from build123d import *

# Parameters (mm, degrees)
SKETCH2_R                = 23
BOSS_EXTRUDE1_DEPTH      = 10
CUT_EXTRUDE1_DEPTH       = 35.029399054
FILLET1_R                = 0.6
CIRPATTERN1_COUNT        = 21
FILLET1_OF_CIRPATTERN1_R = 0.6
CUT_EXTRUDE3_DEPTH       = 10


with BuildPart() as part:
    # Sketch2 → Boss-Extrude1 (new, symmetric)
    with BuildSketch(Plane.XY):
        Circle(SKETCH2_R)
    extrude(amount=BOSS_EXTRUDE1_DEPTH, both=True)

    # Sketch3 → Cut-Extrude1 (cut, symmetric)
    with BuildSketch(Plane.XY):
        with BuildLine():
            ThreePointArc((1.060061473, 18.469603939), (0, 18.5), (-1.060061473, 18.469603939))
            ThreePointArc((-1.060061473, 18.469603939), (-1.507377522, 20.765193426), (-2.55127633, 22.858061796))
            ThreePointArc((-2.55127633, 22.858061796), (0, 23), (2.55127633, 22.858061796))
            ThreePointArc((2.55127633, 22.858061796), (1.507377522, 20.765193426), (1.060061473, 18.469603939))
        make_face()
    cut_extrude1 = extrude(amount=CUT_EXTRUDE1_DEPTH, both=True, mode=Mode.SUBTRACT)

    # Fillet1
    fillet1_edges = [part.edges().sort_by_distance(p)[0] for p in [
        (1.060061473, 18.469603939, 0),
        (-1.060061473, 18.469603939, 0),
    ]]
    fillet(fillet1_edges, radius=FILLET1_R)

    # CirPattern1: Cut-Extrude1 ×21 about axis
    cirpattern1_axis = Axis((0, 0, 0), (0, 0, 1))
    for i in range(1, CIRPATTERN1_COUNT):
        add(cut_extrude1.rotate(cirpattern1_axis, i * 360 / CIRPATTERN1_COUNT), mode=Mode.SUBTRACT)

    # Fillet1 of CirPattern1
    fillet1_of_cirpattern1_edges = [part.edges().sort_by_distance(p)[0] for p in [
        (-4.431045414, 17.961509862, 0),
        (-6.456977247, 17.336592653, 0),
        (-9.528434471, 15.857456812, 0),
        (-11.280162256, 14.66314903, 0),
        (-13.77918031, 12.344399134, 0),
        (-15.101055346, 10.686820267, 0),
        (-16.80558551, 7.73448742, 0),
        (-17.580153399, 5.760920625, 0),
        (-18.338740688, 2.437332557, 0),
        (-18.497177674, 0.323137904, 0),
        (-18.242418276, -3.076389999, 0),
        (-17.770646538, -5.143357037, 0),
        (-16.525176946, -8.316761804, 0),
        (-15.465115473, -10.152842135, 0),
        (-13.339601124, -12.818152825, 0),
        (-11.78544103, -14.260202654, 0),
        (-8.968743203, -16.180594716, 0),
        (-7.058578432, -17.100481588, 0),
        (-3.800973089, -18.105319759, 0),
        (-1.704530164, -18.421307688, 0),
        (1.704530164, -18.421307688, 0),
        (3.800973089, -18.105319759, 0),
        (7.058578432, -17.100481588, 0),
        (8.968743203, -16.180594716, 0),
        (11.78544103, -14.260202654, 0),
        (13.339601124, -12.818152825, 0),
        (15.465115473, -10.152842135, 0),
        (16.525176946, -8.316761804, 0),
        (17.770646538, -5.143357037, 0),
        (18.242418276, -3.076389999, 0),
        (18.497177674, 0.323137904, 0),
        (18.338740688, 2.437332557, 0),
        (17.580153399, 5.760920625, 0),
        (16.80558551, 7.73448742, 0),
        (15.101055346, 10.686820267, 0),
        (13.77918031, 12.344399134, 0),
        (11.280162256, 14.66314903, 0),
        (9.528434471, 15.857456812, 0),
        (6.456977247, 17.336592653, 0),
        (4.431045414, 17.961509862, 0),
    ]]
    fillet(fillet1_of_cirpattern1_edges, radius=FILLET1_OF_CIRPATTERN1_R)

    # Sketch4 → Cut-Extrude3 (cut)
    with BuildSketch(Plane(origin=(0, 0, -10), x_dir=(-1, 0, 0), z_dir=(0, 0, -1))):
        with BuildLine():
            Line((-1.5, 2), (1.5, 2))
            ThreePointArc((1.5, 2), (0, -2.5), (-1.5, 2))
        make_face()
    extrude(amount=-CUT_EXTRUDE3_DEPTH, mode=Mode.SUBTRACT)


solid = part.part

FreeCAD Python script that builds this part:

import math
import FreeCAD as App
import Part
import Sketcher
Q = App.Units.Quantity


def edges_at(feature, points):
    """Names of the edges that pass closest to the given points."""
    edges = feature.Shape.Edges
    near = lambda p: min(range(len(edges)), key=lambda i: edges[i].distToShape(Part.Vertex(*p))[0])
    return sorted({f"Edge{near(p) + 1}" for p in points})

doc = App.newDocument("Part")
params = doc.addObject("Spreadsheet::Sheet", "Params")
for row, (alias, value) in enumerate([
    ("sketch1_diameter", "46 mm"),
    ("pad1_length", "20 mm"),
    ("sketch2_radius", "23 mm"),
    ("sketch2_radius2", "18.5 mm"),
    ("pocket1_length", "70.058798 mm"),
    ("fillet_radius", "0.6 mm"),
    ("fillet2_radius", "0.6 mm"),
    ("sketch3_radius", "2.5 mm"),
    ("sketch3_width", "3 mm"),
    ("pocket2_length", "10 mm"),
], start=1):
    params.set(f"A{row}", alias)
    params.set(f"B{row}", "=" + value)
    params.setAlias(f"B{row}", alias)

body = doc.addObject("PartDesign::Body", "Body")

# Sketch on XY plane
sketch1 = body.newObject("Sketcher::SketchObject", "Sketch")
sketch1.AttachmentSupport = (doc.getObject("XY_Plane"), [""])
sketch1.MapMode = "FlatFace"
sketch1.addGeometry(Part.Circle(App.Vector(0, 0, 0), App.Vector(0, 0, 1), 23), False)
sketch1.addConstraint([
    Sketcher.Constraint("Coincident", 0, 3, -1, 1),
    Sketcher.Constraint("Diameter", 0, Q("46 mm")),
])
sketch1.setExpression("Constraints[1]", "Params.sketch1_diameter")
pad1 = body.newObject("PartDesign::Pad", "Pad")
pad1.Profile = sketch1
pad1.setExpression("Length", "Params.pad1_length")
pad1.Midplane = True

# Sketch on XY plane
sketch2 = body.newObject("Sketcher::SketchObject", "Sketch001")
sketch2.AttachmentSupport = (doc.getObject("XY_Plane"), [""])
sketch2.MapMode = "FlatFace"
sketch2.addGeometry([
    Part.ArcOfCircle(Part.Circle(App.Vector(0, 0, 0), App.Vector(0, 0, 1), 18.5), math.radians(86.72), math.radians(93.28)),
    Part.ArcOfCircle(Part.Circle(App.Vector(9.7, 18, 0), App.Vector(0, 0, 1), 8.7), math.radians(146), math.radians(177)),
    Part.ArcOfCircle(Part.Circle(App.Vector(0, 0, 0), App.Vector(0, 0, 1), 23), math.radians(83.63), math.radians(96.37)),
    Part.ArcOfCircle(Part.Circle(App.Vector(-9.7, 18, 0), App.Vector(0, 0, 1), 8.7), math.radians(3), math.radians(34)),
], False)
sketch2.addConstraint([
    Sketcher.Constraint("Coincident", 0, 1, 1, 2),
    Sketcher.Constraint("Coincident", 1, 1, 2, 1),
    Sketcher.Constraint("Coincident", 2, 2, 3, 2),
    Sketcher.Constraint("Coincident", 3, 1, 0, 2),
    Sketcher.Constraint("Coincident", 0, 3, -1, 1),
    Sketcher.Constraint("Coincident", 2, 3, -1, 1),
    Sketcher.Constraint("Equal", 1, 3),
    Sketcher.Constraint("Symmetric", 1, 3, 3, 3, -2),
    Sketcher.Constraint("Radius", 2, Q("23 mm")),
    Sketcher.Constraint("Radius", 0, Q("18.5 mm")),
    Sketcher.Constraint("Radius", 1, Q("8.68109 mm")),
    Sketcher.Constraint("DistanceX", -1, 1, 1, 3, Q("9.726888 mm")),
    Sketcher.Constraint("DistanceX", -1, 1, 0, 1, Q("1.060061 mm")),
])
sketch2.setExpression("Constraints[8]", "Params.sketch2_radius")
sketch2.setExpression("Constraints[9]", "Params.sketch2_radius2")
pocket1 = body.newObject("PartDesign::Pocket", "Pocket")
pocket1.Profile = sketch2
pocket1.setExpression("Length", "Params.pocket1_length")
pocket1.Midplane = True
doc.recompute()

fillet = body.newObject("PartDesign::Fillet", "Fillet")
fillet.Base = (pocket1, edges_at(pocket1, [(1.06, 18.47, 0), (-1.06, 18.47, 0)]))
fillet.setExpression("Radius", "Params.fillet_radius")
doc.recompute()

polarpattern = body.newObject("PartDesign::PolarPattern", "PolarPattern")
polarpattern.Originals = [pocket1]
polarpattern.Axis = (doc.getObject("Z_Axis"), [""])
polarpattern.Angle = 360
polarpattern.Occurrences = 21
body.Tip = polarpattern
doc.recompute()

fillet2 = body.newObject("PartDesign::Fillet", "Fillet001")
fillet2.Base = (polarpattern, edges_at(polarpattern, [
    (-4.431, 17.962, 0),
    (-6.457, 17.337, 0),
    (-9.528, 15.857, 0),
    (-11.28, 14.663, 0),
    (-13.779, 12.344, 0),
    (-15.101, 10.687, 0),
    (-16.806, 7.734, 0),
    (-17.58, 5.761, 0),
    (-18.339, 2.437, 0),
    (-18.497, 0.323, 0),
    (-18.242, -3.076, 0),
    (-17.771, -5.143, 0),
    (-16.525, -8.317, 0),
    (-15.465, -10.153, 0),
    (-13.34, -12.818, 0),
    (-11.785, -14.26, 0),
    (-8.969, -16.181, 0),
    (-7.059, -17.1, 0),
    (-3.801, -18.105, 0),
    (-1.705, -18.421, 0),
    (1.705, -18.421, 0),
    (3.801, -18.105, 0),
    (7.059, -17.1, 0),
    (8.969, -16.181, 0),
    (11.785, -14.26, 0),
    (13.34, -12.818, 0),
    (15.465, -10.153, 0),
    (16.525, -8.317, 0),
    (17.771, -5.143, 0),
    (18.242, -3.076, 0),
    (18.497, 0.323, 0),
    (18.339, 2.437, 0),
    (17.58, 5.761, 0),
    (16.806, 7.734, 0),
    (15.101, 10.687, 0),
    (13.779, 12.344, 0),
    (11.28, 14.663, 0),
    (9.528, 15.857, 0),
    (6.457, 17.337, 0),
    (4.431, 17.962, 0),
]))
fillet2.setExpression("Radius", "Params.fillet2_radius")

# Sketch on XY plane
sketch3 = body.newObject("Sketcher::SketchObject", "Sketch002")
sketch3.AttachmentSupport = (doc.getObject("XY_Plane"), [""])
sketch3.MapMode = "FlatFace"
sketch3.AttachmentOffset = App.Placement(App.Vector(0, 0, -10), App.Rotation())
sketch3.addGeometry([
    Part.LineSegment(App.Vector(-1.5, 2, 0), App.Vector(1.5, 2, 0)),
    Part.ArcOfCircle(Part.Circle(App.Vector(0, 0, 0), App.Vector(0, 0, 1), 2.5), math.radians(127), math.radians(413)),
], False)
sketch3.addConstraint([
    Sketcher.Constraint("Coincident", 0, 1, 1, 1),
    Sketcher.Constraint("Coincident", 1, 2, 0, 2),
    Sketcher.Constraint("Horizontal", 0),
    Sketcher.Constraint("Coincident", 1, 3, -1, 1),
    Sketcher.Constraint("Radius", 1, Q("2.5 mm")),
    Sketcher.Constraint("DistanceX", 0, 1, 0, 2, Q("3 mm")),
])
sketch3.setExpression("Constraints[4]", "Params.sketch3_radius")
sketch3.setExpression("Constraints[5]", "Params.sketch3_width")
pocket2 = body.newObject("PartDesign::Pocket", "Pocket001")
pocket2.Profile = sketch3
pocket2.setExpression("Length", "Params.pocket2_length")
pocket2.Reversed = True

doc.recompute()
